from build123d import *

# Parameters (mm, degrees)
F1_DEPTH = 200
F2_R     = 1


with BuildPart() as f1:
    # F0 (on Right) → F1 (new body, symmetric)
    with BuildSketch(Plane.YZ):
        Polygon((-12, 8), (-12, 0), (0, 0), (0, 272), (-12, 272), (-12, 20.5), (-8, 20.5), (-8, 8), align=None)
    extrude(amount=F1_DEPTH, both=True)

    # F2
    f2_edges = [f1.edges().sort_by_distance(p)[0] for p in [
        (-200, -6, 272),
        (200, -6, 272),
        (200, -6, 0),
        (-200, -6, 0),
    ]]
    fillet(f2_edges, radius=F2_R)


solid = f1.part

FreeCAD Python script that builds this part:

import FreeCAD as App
import Part
import Sketcher


def edges_at(feature, points):
    """Names of the edges that pass closest to the given points."""
    edges = feature.Shape.Edges
    near = lambda p: min(range(len(edges)), key=lambda i: edges[i].distToShape(Part.Vertex(*p))[0])
    return sorted({f"Edge{near(p) + 1}" for p in points})


def add_polygon(sketch, points):
    """Adds a closed chain of lines whose ends are joined by coincident constraints."""
    first, n = sketch.GeometryCount, len(points)
    for a, b in zip(points, points[1:] + points[:1]):
        sketch.addGeometry(Part.LineSegment(App.Vector(*a, 0), App.Vector(*b, 0)), False)
    for i in range(n):
        sketch.addConstraint(Sketcher.Constraint("Coincident", first + i, 2, first + (i + 1) % n, 1))

doc = App.newDocument("Part")
params = doc.addObject("Spreadsheet::Sheet", "Params")
for row, (alias, value) in enumerate([
    ("sketch1_width", "12 mm"),
    ("sketch1_width2", "4 mm"),
    ("sketch1_height", "8 mm"),
    ("sketch1_height2", "272 mm"),
    ("sketch1_height3", "251.5 mm"),
    ("pad1_length", "400 mm"),
    ("fillet_radius", "1 mm"),
], start=1):
    params.set(f"A{row}", alias)
    params.set(f"B{row}", "=" + value)
    params.setAlias(f"B{row}", alias)

body = doc.addObject("PartDesign::Body", "Body")

sketch1 = body.newObject("Sketcher::SketchObject", "Sketch")
sketch1.AttachmentSupport = (doc.getObject("YZ_Plane"), [""])
sketch1.MapMode = "FlatFace"
add_polygon(sketch1, [(-12, 8), (-12, 0), (0, 0), (0, 272), (-12, 272), (-12, 20.5), (-8, 20.5), (-8, 8)])
sketch1.addConstraint([
    Sketcher.Constraint("Vertical", 0),
    Sketcher.Constraint("Horizontal", 1),
    Sketcher.Constraint("Vertical", 2),
    Sketcher.Constraint("Horizontal", 3),
    Sketcher.Constraint("Vertical", 4),
    Sketcher.Constraint("Horizontal", 5),
    Sketcher.Constraint("Vertical", 6),
    Sketcher.Constraint("Horizontal", 7),
    Sketcher.Constraint("Coincident", 1, 2, -1, 1),
    Sketcher.Constraint("Vertical", 0, 2, 3, 2),
    Sketcher.Constraint("DistanceX", 1, 1, 1, 2, 12.0),
    Sketcher.Constraint("DistanceX", 5, 1, 5, 2, 4.0),
    Sketcher.Constraint("DistanceY", 0, 2, 0, 1, 8.0),
    Sketcher.Constraint("DistanceY", 2, 1, 2, 2, 272.0),
    Sketcher.Constraint("DistanceY", 4, 2, 4, 1, 251.5),
])
sketch1.setExpression("Constraints[18]", "Params.sketch1_width")
sketch1.setExpression("Constraints[19]", "Params.sketch1_width2")
sketch1.setExpression("Constraints[20]", "Params.sketch1_height")
sketch1.setExpression("Constraints[21]", "Params.sketch1_height2")
sketch1.setExpression("Constraints[22]", "Params.sketch1_height3")
pad1 = body.newObject("PartDesign::Pad", "Pad")
pad1.Profile = sketch1
pad1.setExpression("Length", "Params.pad1_length")
pad1.Midplane = True
doc.recompute()

fillet = body.newObject("PartDesign::Fillet", "Fillet")
fillet.Base = (pad1, edges_at(pad1, [
    (-200, -6, 272),
    (200, -6, 272),
    (200, -6, 0),
    (-200, -6, 0),
]))
fillet.setExpression("Radius", "Params.fillet_radius")

doc.recompute()
